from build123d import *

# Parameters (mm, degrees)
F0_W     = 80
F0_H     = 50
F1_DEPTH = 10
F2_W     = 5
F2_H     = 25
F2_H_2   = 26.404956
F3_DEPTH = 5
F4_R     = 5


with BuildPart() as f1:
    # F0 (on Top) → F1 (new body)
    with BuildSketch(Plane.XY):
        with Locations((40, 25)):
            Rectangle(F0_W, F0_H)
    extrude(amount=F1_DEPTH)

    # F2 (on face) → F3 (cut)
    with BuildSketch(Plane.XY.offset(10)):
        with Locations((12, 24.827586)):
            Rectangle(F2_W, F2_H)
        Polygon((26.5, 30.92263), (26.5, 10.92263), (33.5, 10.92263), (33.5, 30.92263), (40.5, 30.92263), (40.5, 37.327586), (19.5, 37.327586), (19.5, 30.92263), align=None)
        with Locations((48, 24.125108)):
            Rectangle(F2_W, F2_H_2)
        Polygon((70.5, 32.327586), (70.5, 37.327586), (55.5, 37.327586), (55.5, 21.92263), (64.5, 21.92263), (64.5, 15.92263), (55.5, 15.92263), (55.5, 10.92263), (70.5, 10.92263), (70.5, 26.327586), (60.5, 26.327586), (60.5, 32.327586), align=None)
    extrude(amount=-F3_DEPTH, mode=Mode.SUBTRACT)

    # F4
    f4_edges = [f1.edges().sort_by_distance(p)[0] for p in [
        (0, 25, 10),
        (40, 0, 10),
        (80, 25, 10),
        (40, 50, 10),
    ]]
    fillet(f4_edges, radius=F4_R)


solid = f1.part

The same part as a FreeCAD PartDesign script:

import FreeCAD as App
import Part
import Sketcher

V = App.Vector


def edges_at(feature, points):
    """Names of the edges that pass closest to the given points."""
    edges = feature.Shape.Edges
    near = lambda p: min(range(len(edges)), key=lambda i: edges[i].distToShape(Part.Vertex(*p))[0])
    return sorted({f"Edge{near(p) + 1}" for p in points})

doc = App.newDocument("Part")
body = doc.addObject("PartDesign::Body", "Body")

sketch1 = body.newObject("Sketcher::SketchObject", "Sketch")
sketch1.AttachmentSupport = (doc.getObject("XY_Plane"), [""])
sketch1.MapMode = "FlatFace"
sketch1.addGeometry([
    Part.LineSegment(V(0, 50, 0), V(0, 0, 0)),
    Part.LineSegment(V(0, 0, 0), V(80, 0, 0)),
    Part.LineSegment(V(80, 0, 0), V(80, 50, 0)),
    Part.LineSegment(V(80, 50, 0), V(0, 50, 0)),
], False)
sketch1.addConstraint([
    Sketcher.Constraint("Coincident", 0, 2, 1, 1),
    Sketcher.Constraint("Coincident", 1, 2, 2, 1),
    Sketcher.Constraint("Coincident", 2, 2, 3, 1),
    Sketcher.Constraint("Coincident", 3, 2, 0, 1),
    Sketcher.Constraint("Vertical", 0),
    Sketcher.Constraint("Horizontal", 1),
    Sketcher.Constraint("Vertical", 2),
    Sketcher.Constraint("Horizontal", 3),
    Sketcher.Constraint("Coincident", 0, 2, -1, 1),
    Sketcher.Constraint("DistanceX", 1, 1, 1, 2, 80.0),
    Sketcher.Constraint("DistanceY", 0, 2, 0, 1, 50.0),
])
pad1 = body.newObject("PartDesign::Pad", "Pad")
pad1.Profile = sketch1
pad1.Length = 10

sketch2 = body.newObject("Sketcher::SketchObject", "Sketch001")
sketch2.AttachmentSupport = (doc.getObject("XY_Plane"), [""])
sketch2.MapMode = "FlatFace"
sketch2.AttachmentOffset = App.Placement(V(0, 0, 10), App.Rotation())
sketch2.addGeometry([
    Part.LineSegment(V(10, 37, 0), V(10, 12, 0)),
    Part.LineSegment(V(10, 12, 0), V(14, 12, 0)),
    Part.LineSegment(V(14, 12, 0), V(14, 37, 0)),
    Part.LineSegment(V(14, 37, 0), V(10, 37, 0)),
    Part.LineSegment(V(26, 31, 0), V(26, 11, 0)),
    Part.LineSegment(V(26, 11, 0), V(34, 11, 0)),
    Part.LineSegment(V(34, 11, 0), V(34, 31, 0)),
    Part.LineSegment(V(34, 31, 0), V(40, 31, 0)),
    Part.LineSegment(V(40, 31, 0), V(40, 37, 0)),
    Part.LineSegment(V(40, 37, 0), V(20, 37, 0)),
    Part.LineSegment(V(20, 37, 0), V(20, 31, 0)),
    Part.LineSegment(V(20, 31, 0), V(26, 31, 0)),
    Part.LineSegment(V(46, 37, 0), V(46, 11, 0)),
    Part.LineSegment(V(46, 11, 0), V(50, 11, 0)),
    Part.LineSegment(V(50, 11, 0), V(50, 37, 0)),
    Part.LineSegment(V(50, 37, 0), V(46, 37, 0)),
    Part.LineSegment(V(70, 32, 0), V(70, 37, 0)),
    Part.LineSegment(V(70, 37, 0), V(56, 37, 0)),
    Part.LineSegment(V(56, 37, 0), V(56, 22, 0)),
    Part.LineSegment(V(56, 22, 0), V(64, 22, 0)),
    Part.LineSegment(V(64, 22, 0), V(64, 16, 0)),
    Part.LineSegment(V(64, 16, 0), V(56, 16, 0)),
    Part.LineSegment(V(56, 16, 0), V(56, 11, 0)),
    Part.LineSegment(V(56, 11, 0), V(70, 11, 0)),
    Part.LineSegment(V(70, 11, 0), V(70, 26, 0)),
    Part.LineSegment(V(70, 26, 0), V(60, 26, 0)),
    Part.LineSegment(V(60, 26, 0), V(60, 32, 0)),
    Part.LineSegment(V(60, 32, 0), V(70, 32, 0)),
], False)
sketch2.addConstraint([
    Sketcher.Constraint("Coincident", 0, 2, 1, 1),
    Sketcher.Constraint("Coincident", 1, 2, 2, 1),
    Sketcher.Constraint("Coincident", 2, 2, 3, 1),
    Sketcher.Constraint("Coincident", 3, 2, 0, 1),
    Sketcher.Constraint("Coincident", 4, 2, 5, 1),
    Sketcher.Constraint("Coincident", 5, 2, 6, 1),
    Sketcher.Constraint("Coincident", 6, 2, 7, 1),
    Sketcher.Constraint("Coincident", 7, 2, 8, 1),
    Sketcher.Constraint("Coincident", 8, 2, 9, 1),
    Sketcher.Constraint("Coincident", 9, 2, 10, 1),
    Sketcher.Constraint("Coincident", 10, 2, 11, 1),
    Sketcher.Constraint("Coincident", 11, 2, 4, 1),
    Sketcher.Constraint("Coincident", 12, 2, 13, 1),
    Sketcher.Constraint("Coincident", 13, 2, 14, 1),
    Sketcher.Constraint("Coincident", 14, 2, 15, 1),
    Sketcher.Constraint("Coincident", 15, 2, 12, 1),
    Sketcher.Constraint("Coincident", 16, 2, 17, 1),
    Sketcher.Constraint("Coincident", 17, 2, 18, 1),
    Sketcher.Constraint("Coincident", 18, 2, 19, 1),
    Sketcher.Constraint("Coincident", 19, 2, 20, 1),
    Sketcher.Constraint("Coincident", 20, 2, 21, 1),
    Sketcher.Constraint("Coincident", 21, 2, 22, 1),
    Sketcher.Constraint("Coincident", 22, 2, 23, 1),
    Sketcher.Constraint("Coincident", 23, 2, 24, 1),
    Sketcher.Constraint("Coincident", 24, 2, 25, 1),
    Sketcher.Constraint("Coincident", 25, 2, 26, 1),
    Sketcher.Constraint("Coincident", 26, 2, 27, 1),
    Sketcher.Constraint("Coincident", 27, 2, 16, 1),
    Sketcher.Constraint("Vertical", 0),
    Sketcher.Constraint("Horizontal", 1),
    Sketcher.Constraint("Vertical", 2),
    Sketcher.Constraint("Horizontal", 3),
    Sketcher.Constraint("Vertical", 4),
    Sketcher.Constraint("Horizontal", 5),
    Sketcher.Constraint("Vertical", 6),
    Sketcher.Constraint("Horizontal", 7),
    Sketcher.Constraint("Vertical", 8),
    Sketcher.Constraint("Horizontal", 9),
    Sketcher.Constraint("Vertical", 10),
    Sketcher.Constraint("Horizontal", 11),
    Sketcher.Constraint("Vertical", 12),
    Sketcher.Constraint("Horizontal", 13),
    Sketcher.Constraint("Vertical", 14),
    Sketcher.Constraint("Horizontal", 15),
    Sketcher.Constraint("Vertical", 16),
    Sketcher.Constraint("Horizontal", 17),
    Sketcher.Constraint("Vertical", 18),
    Sketcher.Constraint("Horizontal", 19),
    Sketcher.Constraint("Vertical", 20),
    Sketcher.Constraint("Horizontal", 21),
    Sketcher.Constraint("Vertical", 22),
    Sketcher.Constraint("Horizontal", 23),
    Sketcher.Constraint("Vertical", 24),
    Sketcher.Constraint("Horizontal", 25),
    Sketcher.Constraint("Vertical", 26),
    Sketcher.Constraint("Horizontal", 27),
    Sketcher.Constraint("Horizontal", 3, 2, 8, 2),
    Sketcher.Constraint("Horizontal", 7, 2, 10, 2),
    Sketcher.Constraint("Horizontal", 5, 2, 12, 2),
    Sketcher.Constraint("Horizontal", 9, 2, 14, 2),
    Sketcher.Constraint("Horizontal", 15, 2, 16, 2),
    Sketcher.Constraint("Horizontal", 13, 2, 22, 2),
    Sketcher.Constraint("Vertical", 18, 2, 21, 2),
    Sketcher.Constraint("Vertical", 16, 2, 23, 2),
    Sketcher.Constraint("Equal", 5, 7),
    Sketcher.Constraint("Equal", 7, 11),
    Sketcher.Constraint("Equal", 3, 13),
    Sketcher.Constraint("Equal", 15, 16),
    Sketcher.Constraint("Equal", 16, 22),
    Sketcher.Constraint("Equal", 18, 24),
    Sketcher.Constraint("DistanceX", 1, 1, 1, 2, 5.0),
    Sketcher.Constraint("DistanceX", 5, 1, 5, 2, 7.0),
    Sketcher.Constraint("DistanceX", 17, 2, 17, 1, 15.0),
    Sketcher.Constraint("DistanceX", 19, 1, 19, 2, 9.0),
    Sketcher.Constraint("DistanceX", 25, 2, 25, 1, 10.0),
    Sketcher.Constraint("DistanceY", 0, 2, 0, 1, 25.0),
    Sketcher.Constraint("DistanceY", 4, 2, 4, 1, 20.0),
    Sketcher.Constraint("DistanceY", 20, 2, 20, 1, 6.0),
    Sketcher.Constraint("DistanceX", 1, 2, 4, 2, 12.0),
    Sketcher.Constraint("DistanceX", 5, 2, 12, 2, 12.0),
    Sketcher.Constraint("DistanceX", 14, 2, 16, 2, 20.0),
    Sketcher.Constraint("DistanceX", -1, 1, 0, 2, 9.5),
    Sketcher.Constraint("DistanceY", 8, 1, 8, 2, 6.404956),
    Sketcher.Constraint("DistanceY", -1, 1, 4, 2, 10.92263),
])
pocket1 = body.newObject("PartDesign::Pocket", "Pocket")
pocket1.Profile = sketch2
pocket1.Length = 5
doc.recompute()

fillet = body.newObject("PartDesign::Fillet", "Fillet")
fillet.Base = (pocket1, edges_at(pocket1, [
    (0, 25, 10),
    (40, 0, 10),
    (80, 25, 10),
    (40, 50, 10),
]))
fillet.Radius = 5

doc.recompute()
